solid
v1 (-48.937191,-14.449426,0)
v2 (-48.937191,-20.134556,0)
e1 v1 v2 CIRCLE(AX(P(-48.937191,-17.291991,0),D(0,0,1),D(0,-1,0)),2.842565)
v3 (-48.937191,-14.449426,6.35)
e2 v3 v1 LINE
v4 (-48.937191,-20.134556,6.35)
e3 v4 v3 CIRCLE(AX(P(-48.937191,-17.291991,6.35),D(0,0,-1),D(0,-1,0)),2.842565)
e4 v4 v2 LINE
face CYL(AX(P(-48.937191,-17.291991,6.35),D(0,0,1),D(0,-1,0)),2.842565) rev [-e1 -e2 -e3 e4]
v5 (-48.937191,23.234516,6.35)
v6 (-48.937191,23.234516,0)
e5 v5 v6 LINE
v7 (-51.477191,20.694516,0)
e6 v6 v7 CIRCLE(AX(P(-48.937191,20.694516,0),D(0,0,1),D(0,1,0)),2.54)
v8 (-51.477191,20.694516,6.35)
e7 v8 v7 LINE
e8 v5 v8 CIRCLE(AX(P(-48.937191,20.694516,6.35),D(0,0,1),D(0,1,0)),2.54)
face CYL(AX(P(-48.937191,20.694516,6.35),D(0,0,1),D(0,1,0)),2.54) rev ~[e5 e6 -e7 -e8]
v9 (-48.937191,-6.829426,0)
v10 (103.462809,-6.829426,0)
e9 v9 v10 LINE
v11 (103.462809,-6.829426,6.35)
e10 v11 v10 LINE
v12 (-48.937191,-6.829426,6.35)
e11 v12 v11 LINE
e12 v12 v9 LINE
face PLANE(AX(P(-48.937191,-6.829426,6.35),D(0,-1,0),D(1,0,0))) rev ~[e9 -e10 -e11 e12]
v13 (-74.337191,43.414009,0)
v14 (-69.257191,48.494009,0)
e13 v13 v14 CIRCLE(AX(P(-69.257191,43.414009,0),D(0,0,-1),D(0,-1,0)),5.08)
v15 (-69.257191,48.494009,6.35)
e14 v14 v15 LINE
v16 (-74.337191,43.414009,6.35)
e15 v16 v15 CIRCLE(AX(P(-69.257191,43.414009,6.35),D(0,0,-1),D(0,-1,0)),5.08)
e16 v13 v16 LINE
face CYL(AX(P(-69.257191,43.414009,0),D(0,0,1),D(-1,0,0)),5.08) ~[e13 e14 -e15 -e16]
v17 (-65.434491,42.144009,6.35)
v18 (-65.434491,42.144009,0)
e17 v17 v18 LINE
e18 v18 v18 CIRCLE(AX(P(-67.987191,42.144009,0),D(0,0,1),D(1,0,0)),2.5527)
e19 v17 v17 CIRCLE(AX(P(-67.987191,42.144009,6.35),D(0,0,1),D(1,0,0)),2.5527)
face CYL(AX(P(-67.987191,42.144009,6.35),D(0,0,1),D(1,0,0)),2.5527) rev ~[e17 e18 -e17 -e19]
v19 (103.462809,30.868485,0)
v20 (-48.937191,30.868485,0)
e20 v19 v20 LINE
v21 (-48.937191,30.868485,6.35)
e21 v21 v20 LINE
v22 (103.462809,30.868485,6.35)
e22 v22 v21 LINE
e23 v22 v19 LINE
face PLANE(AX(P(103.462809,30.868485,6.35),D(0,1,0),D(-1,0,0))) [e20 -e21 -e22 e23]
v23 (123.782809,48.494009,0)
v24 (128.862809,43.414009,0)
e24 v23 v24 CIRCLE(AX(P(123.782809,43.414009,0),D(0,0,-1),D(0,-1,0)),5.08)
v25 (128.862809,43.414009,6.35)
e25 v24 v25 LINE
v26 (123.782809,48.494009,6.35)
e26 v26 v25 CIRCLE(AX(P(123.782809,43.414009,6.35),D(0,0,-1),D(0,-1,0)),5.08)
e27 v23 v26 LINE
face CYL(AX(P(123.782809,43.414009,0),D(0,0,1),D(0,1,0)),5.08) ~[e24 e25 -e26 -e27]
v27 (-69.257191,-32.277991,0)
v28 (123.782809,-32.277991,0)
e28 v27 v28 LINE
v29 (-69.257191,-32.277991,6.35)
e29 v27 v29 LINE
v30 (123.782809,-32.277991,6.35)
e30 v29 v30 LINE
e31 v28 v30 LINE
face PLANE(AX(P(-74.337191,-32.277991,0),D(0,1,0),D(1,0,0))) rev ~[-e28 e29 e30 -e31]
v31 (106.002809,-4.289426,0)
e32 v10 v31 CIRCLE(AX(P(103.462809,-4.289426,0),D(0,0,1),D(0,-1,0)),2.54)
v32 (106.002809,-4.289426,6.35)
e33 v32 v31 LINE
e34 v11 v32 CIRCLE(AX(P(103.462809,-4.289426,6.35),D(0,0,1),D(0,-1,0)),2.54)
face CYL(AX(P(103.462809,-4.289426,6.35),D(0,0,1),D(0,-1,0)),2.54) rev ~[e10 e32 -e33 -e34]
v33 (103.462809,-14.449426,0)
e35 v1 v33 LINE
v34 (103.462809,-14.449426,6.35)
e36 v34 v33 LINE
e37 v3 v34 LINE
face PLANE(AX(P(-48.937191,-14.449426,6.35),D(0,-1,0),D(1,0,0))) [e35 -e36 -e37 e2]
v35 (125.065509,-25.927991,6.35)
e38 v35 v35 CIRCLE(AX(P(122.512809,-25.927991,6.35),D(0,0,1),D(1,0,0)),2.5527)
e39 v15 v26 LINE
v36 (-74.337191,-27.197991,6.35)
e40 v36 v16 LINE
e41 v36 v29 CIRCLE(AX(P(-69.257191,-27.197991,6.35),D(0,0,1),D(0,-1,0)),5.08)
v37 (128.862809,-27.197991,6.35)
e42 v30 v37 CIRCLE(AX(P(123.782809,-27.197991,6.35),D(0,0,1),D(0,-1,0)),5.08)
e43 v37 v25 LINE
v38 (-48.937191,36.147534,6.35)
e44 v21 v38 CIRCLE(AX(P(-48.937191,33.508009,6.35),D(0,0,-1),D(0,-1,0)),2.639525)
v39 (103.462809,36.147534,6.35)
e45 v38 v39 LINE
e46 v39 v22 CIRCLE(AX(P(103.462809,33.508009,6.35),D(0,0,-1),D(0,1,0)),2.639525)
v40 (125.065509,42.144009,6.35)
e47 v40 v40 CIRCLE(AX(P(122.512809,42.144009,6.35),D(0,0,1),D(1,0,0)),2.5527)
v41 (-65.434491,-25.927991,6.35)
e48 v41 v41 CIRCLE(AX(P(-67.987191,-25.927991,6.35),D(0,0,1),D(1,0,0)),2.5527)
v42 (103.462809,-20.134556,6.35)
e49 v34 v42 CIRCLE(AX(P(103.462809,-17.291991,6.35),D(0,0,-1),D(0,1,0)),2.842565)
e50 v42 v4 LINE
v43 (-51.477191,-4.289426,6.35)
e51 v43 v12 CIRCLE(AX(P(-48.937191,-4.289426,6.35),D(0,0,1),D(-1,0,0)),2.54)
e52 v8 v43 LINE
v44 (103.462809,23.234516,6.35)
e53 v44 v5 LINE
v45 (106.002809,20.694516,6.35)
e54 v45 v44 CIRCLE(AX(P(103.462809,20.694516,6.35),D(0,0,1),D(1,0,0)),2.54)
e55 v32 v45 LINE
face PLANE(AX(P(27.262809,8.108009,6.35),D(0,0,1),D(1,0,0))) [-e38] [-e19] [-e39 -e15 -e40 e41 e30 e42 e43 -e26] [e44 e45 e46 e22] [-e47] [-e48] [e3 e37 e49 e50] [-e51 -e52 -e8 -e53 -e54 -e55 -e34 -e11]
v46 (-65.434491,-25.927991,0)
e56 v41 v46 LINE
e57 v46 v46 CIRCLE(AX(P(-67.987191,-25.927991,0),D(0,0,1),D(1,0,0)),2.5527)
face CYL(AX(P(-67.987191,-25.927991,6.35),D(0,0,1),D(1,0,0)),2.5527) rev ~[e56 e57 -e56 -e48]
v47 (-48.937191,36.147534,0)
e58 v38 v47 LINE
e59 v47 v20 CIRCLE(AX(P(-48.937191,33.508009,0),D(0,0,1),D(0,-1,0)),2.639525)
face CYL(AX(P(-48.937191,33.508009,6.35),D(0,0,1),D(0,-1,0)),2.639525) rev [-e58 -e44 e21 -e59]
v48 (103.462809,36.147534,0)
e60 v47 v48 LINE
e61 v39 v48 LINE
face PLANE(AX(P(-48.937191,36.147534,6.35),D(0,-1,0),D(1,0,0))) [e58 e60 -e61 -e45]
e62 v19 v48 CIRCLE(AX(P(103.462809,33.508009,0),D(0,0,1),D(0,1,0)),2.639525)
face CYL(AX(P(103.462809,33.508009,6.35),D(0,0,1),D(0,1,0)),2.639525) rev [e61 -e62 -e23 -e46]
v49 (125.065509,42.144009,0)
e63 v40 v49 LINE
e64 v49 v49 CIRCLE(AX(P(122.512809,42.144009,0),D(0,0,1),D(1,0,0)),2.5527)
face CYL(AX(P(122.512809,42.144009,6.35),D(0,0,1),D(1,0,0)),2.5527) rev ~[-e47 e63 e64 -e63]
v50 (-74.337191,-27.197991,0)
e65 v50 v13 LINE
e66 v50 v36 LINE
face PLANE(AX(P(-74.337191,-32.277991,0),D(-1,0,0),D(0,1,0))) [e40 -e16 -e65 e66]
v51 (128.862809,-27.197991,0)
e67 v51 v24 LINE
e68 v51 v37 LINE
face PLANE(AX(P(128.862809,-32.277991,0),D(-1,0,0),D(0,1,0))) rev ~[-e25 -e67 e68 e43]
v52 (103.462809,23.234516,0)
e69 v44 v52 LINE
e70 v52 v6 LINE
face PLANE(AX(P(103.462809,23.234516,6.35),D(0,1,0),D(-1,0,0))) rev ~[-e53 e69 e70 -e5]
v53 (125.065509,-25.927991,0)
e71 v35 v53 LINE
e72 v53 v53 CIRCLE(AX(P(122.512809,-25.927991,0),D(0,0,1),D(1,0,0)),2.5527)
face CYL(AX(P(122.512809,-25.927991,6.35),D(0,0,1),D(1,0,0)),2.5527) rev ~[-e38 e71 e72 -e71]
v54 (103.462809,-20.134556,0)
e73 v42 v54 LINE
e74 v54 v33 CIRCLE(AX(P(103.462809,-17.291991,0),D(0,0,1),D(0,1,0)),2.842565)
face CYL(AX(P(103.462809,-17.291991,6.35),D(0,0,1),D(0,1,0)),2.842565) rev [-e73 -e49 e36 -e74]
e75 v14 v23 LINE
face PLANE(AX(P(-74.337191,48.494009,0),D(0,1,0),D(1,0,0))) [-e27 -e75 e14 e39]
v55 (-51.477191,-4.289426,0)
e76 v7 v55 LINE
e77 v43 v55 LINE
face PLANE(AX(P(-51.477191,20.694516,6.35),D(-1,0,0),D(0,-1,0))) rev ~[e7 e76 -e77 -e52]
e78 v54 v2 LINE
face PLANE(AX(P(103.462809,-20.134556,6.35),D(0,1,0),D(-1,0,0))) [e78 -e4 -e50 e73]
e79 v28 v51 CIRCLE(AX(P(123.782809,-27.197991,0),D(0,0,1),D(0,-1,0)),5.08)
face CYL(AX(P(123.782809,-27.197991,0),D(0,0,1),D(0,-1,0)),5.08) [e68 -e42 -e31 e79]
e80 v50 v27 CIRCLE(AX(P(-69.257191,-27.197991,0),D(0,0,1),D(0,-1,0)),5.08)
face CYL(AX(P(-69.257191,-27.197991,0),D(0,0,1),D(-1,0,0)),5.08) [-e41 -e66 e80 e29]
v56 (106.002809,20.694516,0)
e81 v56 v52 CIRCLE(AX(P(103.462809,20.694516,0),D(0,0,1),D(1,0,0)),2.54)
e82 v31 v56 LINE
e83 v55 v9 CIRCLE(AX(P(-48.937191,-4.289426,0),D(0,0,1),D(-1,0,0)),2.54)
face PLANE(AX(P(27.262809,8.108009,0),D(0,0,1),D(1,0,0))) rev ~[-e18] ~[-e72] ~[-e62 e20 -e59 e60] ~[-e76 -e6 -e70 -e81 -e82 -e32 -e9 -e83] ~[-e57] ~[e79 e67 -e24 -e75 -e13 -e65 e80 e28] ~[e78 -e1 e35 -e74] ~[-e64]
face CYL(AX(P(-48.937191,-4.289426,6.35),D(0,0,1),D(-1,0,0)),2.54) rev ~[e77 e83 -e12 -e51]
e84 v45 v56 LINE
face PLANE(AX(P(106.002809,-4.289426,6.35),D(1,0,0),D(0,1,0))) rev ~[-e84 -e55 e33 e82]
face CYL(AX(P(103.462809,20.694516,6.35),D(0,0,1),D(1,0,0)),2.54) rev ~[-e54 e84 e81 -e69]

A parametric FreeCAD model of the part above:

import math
import FreeCAD as App
import Part
import Sketcher
Q = App.Units.Quantity


def edges_at(feature, points):
    """Names of the edges that pass closest to the given points."""
    edges = feature.Shape.Edges
    near = lambda p: min(range(len(edges)), key=lambda i: edges[i].distToShape(Part.Vertex(*p))[0])
    return sorted({f"Edge{near(p) + 1}" for p in points})

doc = App.newDocument("Part")
body = doc.addObject("PartDesign::Body", "Body")

sketch1 = body.newObject("Sketcher::SketchObject", "Sketch")
sketch1.AttachmentSupport = (doc.getObject("XY_Plane"), [""])
sketch1.MapMode = "FlatFace"
sketch1.addGeometry(Part.LineSegment(App.Vector(-74, 48, 0), App.Vector(-74, -32, 0)), False)
sketch1.addGeometry(Part.LineSegment(App.Vector(-74, -32, 0), App.Vector(129, -32, 0)), False)
sketch1.addGeometry(Part.LineSegment(App.Vector(129, -32, 0), App.Vector(129, 48, 0)), False)
sketch1.addGeometry(Part.LineSegment(App.Vector(129, 48, 0), App.Vector(-74, 48, 0)), False)
sketch1.addConstraint(Sketcher.Constraint("Coincident", 0, 2, 1, 1))
sketch1.addConstraint(Sketcher.Constraint("Coincident", 1, 2, 2, 1))
sketch1.addConstraint(Sketcher.Constraint("Coincident", 2, 2, 3, 1))
sketch1.addConstraint(Sketcher.Constraint("Coincident", 3, 2, 0, 1))
sketch1.addConstraint(Sketcher.Constraint("Vertical", 0))
sketch1.addConstraint(Sketcher.Constraint("Horizontal", 1))
sketch1.addConstraint(Sketcher.Constraint("Vertical", 2))
sketch1.addConstraint(Sketcher.Constraint("Horizontal", 3))
sketch1.addConstraint(Sketcher.Constraint("DistanceX", 1, 1, 1, 2, Q("8 in")))
sketch1.addConstraint(Sketcher.Constraint("DistanceY", 0, 2, 0, 1, Q("3.18 in")))
sketch1.addConstraint(Sketcher.Constraint("DistanceX", 0, 2, -1, 1, 74.337191))
sketch1.addConstraint(Sketcher.Constraint("DistanceY", 0, 2, -1, 1, 32.277991))
pad1 = body.newObject("PartDesign::Pad", "Pad")
pad1.Profile = sketch1
pad1.Length = Q("0.25 in")

sketch2 = body.newObject("Sketcher::SketchObject", "Sketch001")
sketch2.AttachmentSupport = (doc.getObject("XY_Plane"), [""])
sketch2.MapMode = "FlatFace"
sketch2.AttachmentOffset = App.Placement(App.Vector(0, 0, 0.25 * 25.4), App.Rotation())
sketch2.addGeometry(Part.Circle(App.Vector(-68, 42.1, 0), App.Vector(0, 0, 1), 2.6), False)
sketch2.addGeometry(Part.Circle(App.Vector(-68, -25.9, 0), App.Vector(0, 0, 1), 2.6), False)
sketch2.addGeometry(Part.Circle(App.Vector(122.5, 42.1, 0), App.Vector(0, 0, 1), 2.6), False)
sketch2.addGeometry(Part.Circle(App.Vector(122.5, -25.9, 0), App.Vector(0, 0, 1), 2.6), False)
sketch2.addConstraint(Sketcher.Constraint("Equal", 0, 1))
sketch2.addConstraint(Sketcher.Constraint("Equal", 1, 2))
sketch2.addConstraint(Sketcher.Constraint("Equal", 2, 3))
sketch2.addConstraint(Sketcher.Constraint("Horizontal", 0, 3, 2, 3))
sketch2.addConstraint(Sketcher.Constraint("Horizontal", 1, 3, 3, 3))
sketch2.addConstraint(Sketcher.Constraint("Vertical", 0, 3, 1, 3))
sketch2.addConstraint(Sketcher.Constraint("Vertical", 2, 3, 3, 3))
sketch2.addConstraint(Sketcher.Constraint("Diameter", 0, Q("0.201 in")))
sketch2.addConstraint(Sketcher.Constraint("DistanceX", 0, 3, 2, 3, Q("7.5 in")))
sketch2.addConstraint(Sketcher.Constraint("DistanceY", 1, 3, 0, 3, Q("2.68 in")))
sketch2.addConstraint(Sketcher.Constraint("DistanceX", 0, 3, -1, 1, 67.987191))
sketch2.addConstraint(Sketcher.Constraint("DistanceY", -1, 1, 0, 3, 42.144009))
pocket1 = body.newObject("PartDesign::Pocket", "Pocket")
pocket1.Profile = sketch2
pocket1.Length = Q("0.35 in")

sketch3 = body.newObject("Sketcher::SketchObject", "Sketch002")
sketch3.AttachmentSupport = (doc.getObject("XY_Plane"), [""])
sketch3.MapMode = "FlatFace"
sketch3.AttachmentOffset = App.Placement(App.Vector(0, 0, 0.25 * 25.4), App.Rotation())
sketch3.addGeometry(Part.LineSegment(App.Vector(103.5, 36.1, 0), App.Vector(-48.9, 36.1, 0)), False)
sketch3.addGeometry(Part.ArcOfCircle(Part.Circle(App.Vector(-48.9, 33.5, 0), App.Vector(0, 0, 1), 2.6), math.radians(90), math.radians(270)), False)
sketch3.addGeometry(Part.LineSegment(App.Vector(-48.9, 30.9, 0), App.Vector(103.5, 30.9, 0)), False)
sketch3.addGeometry(Part.ArcOfCircle(Part.Circle(App.Vector(103.5, 33.5, 0), App.Vector(0, 0, 1), 2.6), math.radians(-90), math.radians(90)), False)
sketch3.addGeometry(Part.LineSegment(App.Vector(103.5, -14.4, 0), App.Vector(-48.9, -14.4, 0)), False)
sketch3.addGeometry(Part.ArcOfCircle(Part.Circle(App.Vector(-48.9, -17.3, 0), App.Vector(0, 0, 1), 2.8), math.radians(90), math.radians(270)), False)
sketch3.addGeometry(Part.LineSegment(App.Vector(-48.9, -20.1, 0), App.Vector(103.5, -20.1, 0)), False)
sketch3.addGeometry(Part.ArcOfCircle(Part.Circle(App.Vector(103.5, -17.3, 0), App.Vector(0, 0, 1), 2.8), math.radians(-90), math.radians(90)), False)
sketch3.addGeometry(Part.LineSegment(App.Vector(-48.9, -6.8, 0), App.Vector(103.5, -6.8, 0)), False)
sketch3.addGeometry(Part.ArcOfCircle(Part.Circle(App.Vector(103.5, -4.3, 0), App.Vector(0, 0, 1), 2.5), math.radians(-90), math.radians(0)), False)
sketch3.addGeometry(Part.LineSegment(App.Vector(106, -4.3, 0), App.Vector(106, 20.7, 0)), False)
sketch3.addGeometry(Part.ArcOfCircle(Part.Circle(App.Vector(103.5, 20.7, 0), App.Vector(0, 0, 1), 2.5), math.radians(0), math.radians(90)), False)
sketch3.addGeometry(Part.LineSegment(App.Vector(103.5, 23.2, 0), App.Vector(-48.9, 23.2, 0)), False)
sketch3.addGeometry(Part.ArcOfCircle(Part.Circle(App.Vector(-48.9, 20.7, 0), App.Vector(0, 0, 1), 2.5), math.radians(90), math.radians(180)), False)
sketch3.addGeometry(Part.LineSegment(App.Vector(-51.5, 20.7, 0), App.Vector(-51.5, -4.3, 0)), False)
sketch3.addGeometry(Part.ArcOfCircle(Part.Circle(App.Vector(-48.9, -4.3, 0), App.Vector(0, 0, 1), 2.5), math.radians(180), math.radians(270)), False)
sketch3.addConstraint(Sketcher.Constraint("Tangent", 0, 2, 1, 1))
sketch3.addConstraint(Sketcher.Constraint("Tangent", 1, 2, 2, 1))
sketch3.addConstraint(Sketcher.Constraint("Tangent", 2, 2, 3, 1))
sketch3.addConstraint(Sketcher.Constraint("Tangent", 3, 2, 0, 1))
sketch3.addConstraint(Sketcher.Constraint("Tangent", 4, 2, 5, 1))
sketch3.addConstraint(Sketcher.Constraint("Tangent", 5, 2, 6, 1))
sketch3.addConstraint(Sketcher.Constraint("Tangent", 6, 2, 7, 1))
sketch3.addConstraint(Sketcher.Constraint("Tangent", 7, 2, 4, 1))
sketch3.addConstraint(Sketcher.Constraint("Tangent", 8, 2, 9, 1))
sketch3.addConstraint(Sketcher.Constraint("Tangent", 9, 2, 10, 1))
sketch3.addConstraint(Sketcher.Constraint("Tangent", 10, 2, 11, 1))
sketch3.addConstraint(Sketcher.Constraint("Tangent", 11, 2, 12, 1))
sketch3.addConstraint(Sketcher.Constraint("Tangent", 12, 2, 13, 1))
sketch3.addConstraint(Sketcher.Constraint("Tangent", 13, 2, 14, 1))
sketch3.addConstraint(Sketcher.Constraint("Tangent", 14, 2, 15, 1))
sketch3.addConstraint(Sketcher.Constraint("Tangent", 15, 2, 8, 1))
sketch3.addConstraint(Sketcher.Constraint("Horizontal", 0))
sketch3.addConstraint(Sketcher.Constraint("Horizontal", 2))
sketch3.addConstraint(Sketcher.Constraint("Horizontal", 4))
sketch3.addConstraint(Sketcher.Constraint("Horizontal", 6))
sketch3.addConstraint(Sketcher.Constraint("Horizontal", 8))
sketch3.addConstraint(Sketcher.Constraint("Vertical", 10))
sketch3.addConstraint(Sketcher.Constraint("Horizontal", 12))
sketch3.addConstraint(Sketcher.Constraint("Vertical", 14))
sketch3.addConstraint(Sketcher.Constraint("Equal", 9, 11))
sketch3.addConstraint(Sketcher.Constraint("Equal", 11, 13))
sketch3.addConstraint(Sketcher.Constraint("Equal", 13, 15))
sketch3.addConstraint(Sketcher.Constraint("Vertical", 1, 3, 5, 3))
sketch3.addConstraint(Sketcher.Constraint("Vertical", 3, 3, 7, 3))
sketch3.addConstraint(Sketcher.Constraint("Vertical", 7, 3, 9, 3))
sketch3.addConstraint(Sketcher.Constraint("Vertical", 5, 3, 13, 3))
sketch3.addConstraint(Sketcher.Constraint("Radius", 9, Q("0.1 in")))
sketch3.addConstraint(Sketcher.Constraint("DistanceX", 0, 2, 0, 1, Q("6 in")))
sketch3.addConstraint(Sketcher.Constraint("DistanceY", 5, 3, 1, 3, Q("2 in")))
sketch3.addConstraint(Sketcher.Constraint("DistanceY", 4, 2, 15, 3, Q("0.4 in")))
sketch3.addConstraint(Sketcher.Constraint("Radius", 1, 2.639525))
sketch3.addConstraint(Sketcher.Constraint("Radius", 5, 2.842565))
sketch3.addConstraint(Sketcher.Constraint("DistanceY", 10, 1, 10, 2, 24.983942))
sketch3.addConstraint(Sketcher.Constraint("DistanceX", 1, 3, -1, 1, 48.937191))
sketch3.addConstraint(Sketcher.Constraint("DistanceY", -1, 1, 1, 3, 33.508009))
pocket2 = body.newObject("PartDesign::Pocket", "Pocket001")
pocket2.Profile = sketch3
pocket2.Length = Q("0.55 in")
doc.recompute()

fillet = body.newObject("PartDesign::Fillet", "Fillet")
fillet.Base = (pocket2, edges_at(pocket2, [
    (-74.337, 48.494, 3.175),
    (128.863, 48.494, 3.175),
    (128.863, -32.278, 3.175),
    (-74.337, -32.278, 3.175),
]))
fillet.Radius = Q("0.2 in")

doc.recompute()
